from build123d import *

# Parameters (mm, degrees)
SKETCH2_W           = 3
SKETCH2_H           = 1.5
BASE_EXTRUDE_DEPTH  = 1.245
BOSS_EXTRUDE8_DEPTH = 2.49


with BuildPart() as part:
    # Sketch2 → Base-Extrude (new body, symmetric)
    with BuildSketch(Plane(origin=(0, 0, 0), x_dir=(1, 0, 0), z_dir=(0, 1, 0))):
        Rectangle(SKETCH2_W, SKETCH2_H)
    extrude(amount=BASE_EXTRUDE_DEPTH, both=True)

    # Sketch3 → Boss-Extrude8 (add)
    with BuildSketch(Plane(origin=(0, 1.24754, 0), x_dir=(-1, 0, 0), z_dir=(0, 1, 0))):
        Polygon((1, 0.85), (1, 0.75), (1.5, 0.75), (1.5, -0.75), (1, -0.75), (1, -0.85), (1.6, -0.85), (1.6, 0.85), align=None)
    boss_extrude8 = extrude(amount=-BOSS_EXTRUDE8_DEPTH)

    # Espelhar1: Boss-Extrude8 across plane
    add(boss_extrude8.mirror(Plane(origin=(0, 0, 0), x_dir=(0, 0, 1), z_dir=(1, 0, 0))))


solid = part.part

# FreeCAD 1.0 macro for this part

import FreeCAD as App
import Part
import Sketcher

V = App.Vector

doc = App.newDocument("Part")
body = doc.addObject("PartDesign::Body", "Body")

sketch1 = body.newObject("Sketcher::SketchObject", "Sketch")
sketch1.AttachmentSupport = (doc.getObject("XZ_Plane"), [""])
sketch1.MapMode = "FlatFace"
sketch1.addGeometry([
    Part.LineSegment(V(-1.5, -0.8, 0), V(-1.5, 0.8, 0)),
    Part.LineSegment(V(-1.5, 0.8, 0), V(1.5, 0.8, 0)),
    Part.LineSegment(V(1.5, 0.8, 0), V(1.5, -0.8, 0)),
    Part.LineSegment(V(1.5, -0.8, 0), V(-1.5, -0.8, 0)),
], False)
sketch1.addConstraint([
    Sketcher.Constraint("Coincident", 0, 2, 1, 1),
    Sketcher.Constraint("Coincident", 1, 2, 2, 1),
    Sketcher.Constraint("Coincident", 2, 2, 3, 1),
    Sketcher.Constraint("Coincident", 3, 2, 0, 1),
    Sketcher.Constraint("Vertical", 0),
    Sketcher.Constraint("Horizontal", 1),
    Sketcher.Constraint("Vertical", 2),
    Sketcher.Constraint("Horizontal", 3),
    Sketcher.Constraint("Symmetric", 0, 2, 2, 2, -1, 1),
    Sketcher.Constraint("DistanceX", 1, 1, 1, 2, 3.0),
    Sketcher.Constraint("DistanceY", 0, 1, 0, 2, 1.5),
])
pad1 = body.newObject("PartDesign::Pad", "Pad")
pad1.Profile = sketch1
pad1.Length = 2.49
pad1.Midplane = True

sketch2 = body.newObject("Sketcher::SketchObject", "Sketch001")
sketch2.AttachmentSupport = (doc.getObject("XZ_Plane"), [""])
sketch2.MapMode = "FlatFace"
sketch2.AttachmentOffset = App.Placement(V(0, 0, -1.24754), App.Rotation())
sketch2.addGeometry([
    Part.LineSegment(V(-1, 0.85, 0), V(-1, 0.75, 0)),
    Part.LineSegment(V(-1, 0.75, 0), V(-1.5, 0.75, 0)),
    Part.LineSegment(V(-1.5, 0.75, 0), V(-1.5, -0.75, 0)),
    Part.LineSegment(V(-1.5, -0.75, 0), V(-1, -0.75, 0)),
    Part.LineSegment(V(-1, -0.75, 0), V(-1, -0.85, 0)),
    Part.LineSegment(V(-1, -0.85, 0), V(-1.6, -0.85, 0)),
    Part.LineSegment(V(-1.6, -0.85, 0), V(-1.6, 0.85, 0)),
    Part.LineSegment(V(-1.6, 0.85, 0), V(-1, 0.85, 0)),
], False)
sketch2.addConstraint([
    Sketcher.Constraint("Coincident", 0, 2, 1, 1),
    Sketcher.Constraint("Coincident", 1, 2, 2, 1),
    Sketcher.Constraint("Coincident", 2, 2, 3, 1),
    Sketcher.Constraint("Coincident", 3, 2, 4, 1),
    Sketcher.Constraint("Coincident", 4, 2, 5, 1),
    Sketcher.Constraint("Coincident", 5, 2, 6, 1),
    Sketcher.Constraint("Coincident", 6, 2, 7, 1),
    Sketcher.Constraint("Coincident", 7, 2, 0, 1),
    Sketcher.Constraint("Vertical", 0),
    Sketcher.Constraint("Horizontal", 1),
    Sketcher.Constraint("Vertical", 2),
    Sketcher.Constraint("Horizontal", 3),
    Sketcher.Constraint("Vertical", 4),
    Sketcher.Constraint("Horizontal", 5),
    Sketcher.Constraint("Vertical", 6),
    Sketcher.Constraint("Horizontal", 7),
    Sketcher.Constraint("Symmetric", 0, 2, 3, 2, -1),
    Sketcher.Constraint("Equal", 0, 4),
    Sketcher.Constraint("DistanceX", 1, 2, 1, 1, 0.5),
    Sketcher.Constraint("DistanceX", 5, 2, 5, 1, 0.6),
    Sketcher.Constraint("DistanceY", 0, 2, 0, 1, 0.1),
    Sketcher.Constraint("DistanceY", 2, 2, 2, 1, 1.5),
    Sketcher.Constraint("DistanceX", 0, 2, -1, 1, 1.0),
])
pad2 = body.newObject("PartDesign::Pad", "Pad001")
pad2.Profile = sketch2
pad2.Length = 2.49
doc.recompute()

mirrored = body.newObject("PartDesign::Mirrored", "Mirrored")
mirrored.Originals = [pad2]
mirrored.MirrorPlane = (doc.getObject("YZ_Plane"), [""])
body.Tip = mirrored

doc.recompute()
